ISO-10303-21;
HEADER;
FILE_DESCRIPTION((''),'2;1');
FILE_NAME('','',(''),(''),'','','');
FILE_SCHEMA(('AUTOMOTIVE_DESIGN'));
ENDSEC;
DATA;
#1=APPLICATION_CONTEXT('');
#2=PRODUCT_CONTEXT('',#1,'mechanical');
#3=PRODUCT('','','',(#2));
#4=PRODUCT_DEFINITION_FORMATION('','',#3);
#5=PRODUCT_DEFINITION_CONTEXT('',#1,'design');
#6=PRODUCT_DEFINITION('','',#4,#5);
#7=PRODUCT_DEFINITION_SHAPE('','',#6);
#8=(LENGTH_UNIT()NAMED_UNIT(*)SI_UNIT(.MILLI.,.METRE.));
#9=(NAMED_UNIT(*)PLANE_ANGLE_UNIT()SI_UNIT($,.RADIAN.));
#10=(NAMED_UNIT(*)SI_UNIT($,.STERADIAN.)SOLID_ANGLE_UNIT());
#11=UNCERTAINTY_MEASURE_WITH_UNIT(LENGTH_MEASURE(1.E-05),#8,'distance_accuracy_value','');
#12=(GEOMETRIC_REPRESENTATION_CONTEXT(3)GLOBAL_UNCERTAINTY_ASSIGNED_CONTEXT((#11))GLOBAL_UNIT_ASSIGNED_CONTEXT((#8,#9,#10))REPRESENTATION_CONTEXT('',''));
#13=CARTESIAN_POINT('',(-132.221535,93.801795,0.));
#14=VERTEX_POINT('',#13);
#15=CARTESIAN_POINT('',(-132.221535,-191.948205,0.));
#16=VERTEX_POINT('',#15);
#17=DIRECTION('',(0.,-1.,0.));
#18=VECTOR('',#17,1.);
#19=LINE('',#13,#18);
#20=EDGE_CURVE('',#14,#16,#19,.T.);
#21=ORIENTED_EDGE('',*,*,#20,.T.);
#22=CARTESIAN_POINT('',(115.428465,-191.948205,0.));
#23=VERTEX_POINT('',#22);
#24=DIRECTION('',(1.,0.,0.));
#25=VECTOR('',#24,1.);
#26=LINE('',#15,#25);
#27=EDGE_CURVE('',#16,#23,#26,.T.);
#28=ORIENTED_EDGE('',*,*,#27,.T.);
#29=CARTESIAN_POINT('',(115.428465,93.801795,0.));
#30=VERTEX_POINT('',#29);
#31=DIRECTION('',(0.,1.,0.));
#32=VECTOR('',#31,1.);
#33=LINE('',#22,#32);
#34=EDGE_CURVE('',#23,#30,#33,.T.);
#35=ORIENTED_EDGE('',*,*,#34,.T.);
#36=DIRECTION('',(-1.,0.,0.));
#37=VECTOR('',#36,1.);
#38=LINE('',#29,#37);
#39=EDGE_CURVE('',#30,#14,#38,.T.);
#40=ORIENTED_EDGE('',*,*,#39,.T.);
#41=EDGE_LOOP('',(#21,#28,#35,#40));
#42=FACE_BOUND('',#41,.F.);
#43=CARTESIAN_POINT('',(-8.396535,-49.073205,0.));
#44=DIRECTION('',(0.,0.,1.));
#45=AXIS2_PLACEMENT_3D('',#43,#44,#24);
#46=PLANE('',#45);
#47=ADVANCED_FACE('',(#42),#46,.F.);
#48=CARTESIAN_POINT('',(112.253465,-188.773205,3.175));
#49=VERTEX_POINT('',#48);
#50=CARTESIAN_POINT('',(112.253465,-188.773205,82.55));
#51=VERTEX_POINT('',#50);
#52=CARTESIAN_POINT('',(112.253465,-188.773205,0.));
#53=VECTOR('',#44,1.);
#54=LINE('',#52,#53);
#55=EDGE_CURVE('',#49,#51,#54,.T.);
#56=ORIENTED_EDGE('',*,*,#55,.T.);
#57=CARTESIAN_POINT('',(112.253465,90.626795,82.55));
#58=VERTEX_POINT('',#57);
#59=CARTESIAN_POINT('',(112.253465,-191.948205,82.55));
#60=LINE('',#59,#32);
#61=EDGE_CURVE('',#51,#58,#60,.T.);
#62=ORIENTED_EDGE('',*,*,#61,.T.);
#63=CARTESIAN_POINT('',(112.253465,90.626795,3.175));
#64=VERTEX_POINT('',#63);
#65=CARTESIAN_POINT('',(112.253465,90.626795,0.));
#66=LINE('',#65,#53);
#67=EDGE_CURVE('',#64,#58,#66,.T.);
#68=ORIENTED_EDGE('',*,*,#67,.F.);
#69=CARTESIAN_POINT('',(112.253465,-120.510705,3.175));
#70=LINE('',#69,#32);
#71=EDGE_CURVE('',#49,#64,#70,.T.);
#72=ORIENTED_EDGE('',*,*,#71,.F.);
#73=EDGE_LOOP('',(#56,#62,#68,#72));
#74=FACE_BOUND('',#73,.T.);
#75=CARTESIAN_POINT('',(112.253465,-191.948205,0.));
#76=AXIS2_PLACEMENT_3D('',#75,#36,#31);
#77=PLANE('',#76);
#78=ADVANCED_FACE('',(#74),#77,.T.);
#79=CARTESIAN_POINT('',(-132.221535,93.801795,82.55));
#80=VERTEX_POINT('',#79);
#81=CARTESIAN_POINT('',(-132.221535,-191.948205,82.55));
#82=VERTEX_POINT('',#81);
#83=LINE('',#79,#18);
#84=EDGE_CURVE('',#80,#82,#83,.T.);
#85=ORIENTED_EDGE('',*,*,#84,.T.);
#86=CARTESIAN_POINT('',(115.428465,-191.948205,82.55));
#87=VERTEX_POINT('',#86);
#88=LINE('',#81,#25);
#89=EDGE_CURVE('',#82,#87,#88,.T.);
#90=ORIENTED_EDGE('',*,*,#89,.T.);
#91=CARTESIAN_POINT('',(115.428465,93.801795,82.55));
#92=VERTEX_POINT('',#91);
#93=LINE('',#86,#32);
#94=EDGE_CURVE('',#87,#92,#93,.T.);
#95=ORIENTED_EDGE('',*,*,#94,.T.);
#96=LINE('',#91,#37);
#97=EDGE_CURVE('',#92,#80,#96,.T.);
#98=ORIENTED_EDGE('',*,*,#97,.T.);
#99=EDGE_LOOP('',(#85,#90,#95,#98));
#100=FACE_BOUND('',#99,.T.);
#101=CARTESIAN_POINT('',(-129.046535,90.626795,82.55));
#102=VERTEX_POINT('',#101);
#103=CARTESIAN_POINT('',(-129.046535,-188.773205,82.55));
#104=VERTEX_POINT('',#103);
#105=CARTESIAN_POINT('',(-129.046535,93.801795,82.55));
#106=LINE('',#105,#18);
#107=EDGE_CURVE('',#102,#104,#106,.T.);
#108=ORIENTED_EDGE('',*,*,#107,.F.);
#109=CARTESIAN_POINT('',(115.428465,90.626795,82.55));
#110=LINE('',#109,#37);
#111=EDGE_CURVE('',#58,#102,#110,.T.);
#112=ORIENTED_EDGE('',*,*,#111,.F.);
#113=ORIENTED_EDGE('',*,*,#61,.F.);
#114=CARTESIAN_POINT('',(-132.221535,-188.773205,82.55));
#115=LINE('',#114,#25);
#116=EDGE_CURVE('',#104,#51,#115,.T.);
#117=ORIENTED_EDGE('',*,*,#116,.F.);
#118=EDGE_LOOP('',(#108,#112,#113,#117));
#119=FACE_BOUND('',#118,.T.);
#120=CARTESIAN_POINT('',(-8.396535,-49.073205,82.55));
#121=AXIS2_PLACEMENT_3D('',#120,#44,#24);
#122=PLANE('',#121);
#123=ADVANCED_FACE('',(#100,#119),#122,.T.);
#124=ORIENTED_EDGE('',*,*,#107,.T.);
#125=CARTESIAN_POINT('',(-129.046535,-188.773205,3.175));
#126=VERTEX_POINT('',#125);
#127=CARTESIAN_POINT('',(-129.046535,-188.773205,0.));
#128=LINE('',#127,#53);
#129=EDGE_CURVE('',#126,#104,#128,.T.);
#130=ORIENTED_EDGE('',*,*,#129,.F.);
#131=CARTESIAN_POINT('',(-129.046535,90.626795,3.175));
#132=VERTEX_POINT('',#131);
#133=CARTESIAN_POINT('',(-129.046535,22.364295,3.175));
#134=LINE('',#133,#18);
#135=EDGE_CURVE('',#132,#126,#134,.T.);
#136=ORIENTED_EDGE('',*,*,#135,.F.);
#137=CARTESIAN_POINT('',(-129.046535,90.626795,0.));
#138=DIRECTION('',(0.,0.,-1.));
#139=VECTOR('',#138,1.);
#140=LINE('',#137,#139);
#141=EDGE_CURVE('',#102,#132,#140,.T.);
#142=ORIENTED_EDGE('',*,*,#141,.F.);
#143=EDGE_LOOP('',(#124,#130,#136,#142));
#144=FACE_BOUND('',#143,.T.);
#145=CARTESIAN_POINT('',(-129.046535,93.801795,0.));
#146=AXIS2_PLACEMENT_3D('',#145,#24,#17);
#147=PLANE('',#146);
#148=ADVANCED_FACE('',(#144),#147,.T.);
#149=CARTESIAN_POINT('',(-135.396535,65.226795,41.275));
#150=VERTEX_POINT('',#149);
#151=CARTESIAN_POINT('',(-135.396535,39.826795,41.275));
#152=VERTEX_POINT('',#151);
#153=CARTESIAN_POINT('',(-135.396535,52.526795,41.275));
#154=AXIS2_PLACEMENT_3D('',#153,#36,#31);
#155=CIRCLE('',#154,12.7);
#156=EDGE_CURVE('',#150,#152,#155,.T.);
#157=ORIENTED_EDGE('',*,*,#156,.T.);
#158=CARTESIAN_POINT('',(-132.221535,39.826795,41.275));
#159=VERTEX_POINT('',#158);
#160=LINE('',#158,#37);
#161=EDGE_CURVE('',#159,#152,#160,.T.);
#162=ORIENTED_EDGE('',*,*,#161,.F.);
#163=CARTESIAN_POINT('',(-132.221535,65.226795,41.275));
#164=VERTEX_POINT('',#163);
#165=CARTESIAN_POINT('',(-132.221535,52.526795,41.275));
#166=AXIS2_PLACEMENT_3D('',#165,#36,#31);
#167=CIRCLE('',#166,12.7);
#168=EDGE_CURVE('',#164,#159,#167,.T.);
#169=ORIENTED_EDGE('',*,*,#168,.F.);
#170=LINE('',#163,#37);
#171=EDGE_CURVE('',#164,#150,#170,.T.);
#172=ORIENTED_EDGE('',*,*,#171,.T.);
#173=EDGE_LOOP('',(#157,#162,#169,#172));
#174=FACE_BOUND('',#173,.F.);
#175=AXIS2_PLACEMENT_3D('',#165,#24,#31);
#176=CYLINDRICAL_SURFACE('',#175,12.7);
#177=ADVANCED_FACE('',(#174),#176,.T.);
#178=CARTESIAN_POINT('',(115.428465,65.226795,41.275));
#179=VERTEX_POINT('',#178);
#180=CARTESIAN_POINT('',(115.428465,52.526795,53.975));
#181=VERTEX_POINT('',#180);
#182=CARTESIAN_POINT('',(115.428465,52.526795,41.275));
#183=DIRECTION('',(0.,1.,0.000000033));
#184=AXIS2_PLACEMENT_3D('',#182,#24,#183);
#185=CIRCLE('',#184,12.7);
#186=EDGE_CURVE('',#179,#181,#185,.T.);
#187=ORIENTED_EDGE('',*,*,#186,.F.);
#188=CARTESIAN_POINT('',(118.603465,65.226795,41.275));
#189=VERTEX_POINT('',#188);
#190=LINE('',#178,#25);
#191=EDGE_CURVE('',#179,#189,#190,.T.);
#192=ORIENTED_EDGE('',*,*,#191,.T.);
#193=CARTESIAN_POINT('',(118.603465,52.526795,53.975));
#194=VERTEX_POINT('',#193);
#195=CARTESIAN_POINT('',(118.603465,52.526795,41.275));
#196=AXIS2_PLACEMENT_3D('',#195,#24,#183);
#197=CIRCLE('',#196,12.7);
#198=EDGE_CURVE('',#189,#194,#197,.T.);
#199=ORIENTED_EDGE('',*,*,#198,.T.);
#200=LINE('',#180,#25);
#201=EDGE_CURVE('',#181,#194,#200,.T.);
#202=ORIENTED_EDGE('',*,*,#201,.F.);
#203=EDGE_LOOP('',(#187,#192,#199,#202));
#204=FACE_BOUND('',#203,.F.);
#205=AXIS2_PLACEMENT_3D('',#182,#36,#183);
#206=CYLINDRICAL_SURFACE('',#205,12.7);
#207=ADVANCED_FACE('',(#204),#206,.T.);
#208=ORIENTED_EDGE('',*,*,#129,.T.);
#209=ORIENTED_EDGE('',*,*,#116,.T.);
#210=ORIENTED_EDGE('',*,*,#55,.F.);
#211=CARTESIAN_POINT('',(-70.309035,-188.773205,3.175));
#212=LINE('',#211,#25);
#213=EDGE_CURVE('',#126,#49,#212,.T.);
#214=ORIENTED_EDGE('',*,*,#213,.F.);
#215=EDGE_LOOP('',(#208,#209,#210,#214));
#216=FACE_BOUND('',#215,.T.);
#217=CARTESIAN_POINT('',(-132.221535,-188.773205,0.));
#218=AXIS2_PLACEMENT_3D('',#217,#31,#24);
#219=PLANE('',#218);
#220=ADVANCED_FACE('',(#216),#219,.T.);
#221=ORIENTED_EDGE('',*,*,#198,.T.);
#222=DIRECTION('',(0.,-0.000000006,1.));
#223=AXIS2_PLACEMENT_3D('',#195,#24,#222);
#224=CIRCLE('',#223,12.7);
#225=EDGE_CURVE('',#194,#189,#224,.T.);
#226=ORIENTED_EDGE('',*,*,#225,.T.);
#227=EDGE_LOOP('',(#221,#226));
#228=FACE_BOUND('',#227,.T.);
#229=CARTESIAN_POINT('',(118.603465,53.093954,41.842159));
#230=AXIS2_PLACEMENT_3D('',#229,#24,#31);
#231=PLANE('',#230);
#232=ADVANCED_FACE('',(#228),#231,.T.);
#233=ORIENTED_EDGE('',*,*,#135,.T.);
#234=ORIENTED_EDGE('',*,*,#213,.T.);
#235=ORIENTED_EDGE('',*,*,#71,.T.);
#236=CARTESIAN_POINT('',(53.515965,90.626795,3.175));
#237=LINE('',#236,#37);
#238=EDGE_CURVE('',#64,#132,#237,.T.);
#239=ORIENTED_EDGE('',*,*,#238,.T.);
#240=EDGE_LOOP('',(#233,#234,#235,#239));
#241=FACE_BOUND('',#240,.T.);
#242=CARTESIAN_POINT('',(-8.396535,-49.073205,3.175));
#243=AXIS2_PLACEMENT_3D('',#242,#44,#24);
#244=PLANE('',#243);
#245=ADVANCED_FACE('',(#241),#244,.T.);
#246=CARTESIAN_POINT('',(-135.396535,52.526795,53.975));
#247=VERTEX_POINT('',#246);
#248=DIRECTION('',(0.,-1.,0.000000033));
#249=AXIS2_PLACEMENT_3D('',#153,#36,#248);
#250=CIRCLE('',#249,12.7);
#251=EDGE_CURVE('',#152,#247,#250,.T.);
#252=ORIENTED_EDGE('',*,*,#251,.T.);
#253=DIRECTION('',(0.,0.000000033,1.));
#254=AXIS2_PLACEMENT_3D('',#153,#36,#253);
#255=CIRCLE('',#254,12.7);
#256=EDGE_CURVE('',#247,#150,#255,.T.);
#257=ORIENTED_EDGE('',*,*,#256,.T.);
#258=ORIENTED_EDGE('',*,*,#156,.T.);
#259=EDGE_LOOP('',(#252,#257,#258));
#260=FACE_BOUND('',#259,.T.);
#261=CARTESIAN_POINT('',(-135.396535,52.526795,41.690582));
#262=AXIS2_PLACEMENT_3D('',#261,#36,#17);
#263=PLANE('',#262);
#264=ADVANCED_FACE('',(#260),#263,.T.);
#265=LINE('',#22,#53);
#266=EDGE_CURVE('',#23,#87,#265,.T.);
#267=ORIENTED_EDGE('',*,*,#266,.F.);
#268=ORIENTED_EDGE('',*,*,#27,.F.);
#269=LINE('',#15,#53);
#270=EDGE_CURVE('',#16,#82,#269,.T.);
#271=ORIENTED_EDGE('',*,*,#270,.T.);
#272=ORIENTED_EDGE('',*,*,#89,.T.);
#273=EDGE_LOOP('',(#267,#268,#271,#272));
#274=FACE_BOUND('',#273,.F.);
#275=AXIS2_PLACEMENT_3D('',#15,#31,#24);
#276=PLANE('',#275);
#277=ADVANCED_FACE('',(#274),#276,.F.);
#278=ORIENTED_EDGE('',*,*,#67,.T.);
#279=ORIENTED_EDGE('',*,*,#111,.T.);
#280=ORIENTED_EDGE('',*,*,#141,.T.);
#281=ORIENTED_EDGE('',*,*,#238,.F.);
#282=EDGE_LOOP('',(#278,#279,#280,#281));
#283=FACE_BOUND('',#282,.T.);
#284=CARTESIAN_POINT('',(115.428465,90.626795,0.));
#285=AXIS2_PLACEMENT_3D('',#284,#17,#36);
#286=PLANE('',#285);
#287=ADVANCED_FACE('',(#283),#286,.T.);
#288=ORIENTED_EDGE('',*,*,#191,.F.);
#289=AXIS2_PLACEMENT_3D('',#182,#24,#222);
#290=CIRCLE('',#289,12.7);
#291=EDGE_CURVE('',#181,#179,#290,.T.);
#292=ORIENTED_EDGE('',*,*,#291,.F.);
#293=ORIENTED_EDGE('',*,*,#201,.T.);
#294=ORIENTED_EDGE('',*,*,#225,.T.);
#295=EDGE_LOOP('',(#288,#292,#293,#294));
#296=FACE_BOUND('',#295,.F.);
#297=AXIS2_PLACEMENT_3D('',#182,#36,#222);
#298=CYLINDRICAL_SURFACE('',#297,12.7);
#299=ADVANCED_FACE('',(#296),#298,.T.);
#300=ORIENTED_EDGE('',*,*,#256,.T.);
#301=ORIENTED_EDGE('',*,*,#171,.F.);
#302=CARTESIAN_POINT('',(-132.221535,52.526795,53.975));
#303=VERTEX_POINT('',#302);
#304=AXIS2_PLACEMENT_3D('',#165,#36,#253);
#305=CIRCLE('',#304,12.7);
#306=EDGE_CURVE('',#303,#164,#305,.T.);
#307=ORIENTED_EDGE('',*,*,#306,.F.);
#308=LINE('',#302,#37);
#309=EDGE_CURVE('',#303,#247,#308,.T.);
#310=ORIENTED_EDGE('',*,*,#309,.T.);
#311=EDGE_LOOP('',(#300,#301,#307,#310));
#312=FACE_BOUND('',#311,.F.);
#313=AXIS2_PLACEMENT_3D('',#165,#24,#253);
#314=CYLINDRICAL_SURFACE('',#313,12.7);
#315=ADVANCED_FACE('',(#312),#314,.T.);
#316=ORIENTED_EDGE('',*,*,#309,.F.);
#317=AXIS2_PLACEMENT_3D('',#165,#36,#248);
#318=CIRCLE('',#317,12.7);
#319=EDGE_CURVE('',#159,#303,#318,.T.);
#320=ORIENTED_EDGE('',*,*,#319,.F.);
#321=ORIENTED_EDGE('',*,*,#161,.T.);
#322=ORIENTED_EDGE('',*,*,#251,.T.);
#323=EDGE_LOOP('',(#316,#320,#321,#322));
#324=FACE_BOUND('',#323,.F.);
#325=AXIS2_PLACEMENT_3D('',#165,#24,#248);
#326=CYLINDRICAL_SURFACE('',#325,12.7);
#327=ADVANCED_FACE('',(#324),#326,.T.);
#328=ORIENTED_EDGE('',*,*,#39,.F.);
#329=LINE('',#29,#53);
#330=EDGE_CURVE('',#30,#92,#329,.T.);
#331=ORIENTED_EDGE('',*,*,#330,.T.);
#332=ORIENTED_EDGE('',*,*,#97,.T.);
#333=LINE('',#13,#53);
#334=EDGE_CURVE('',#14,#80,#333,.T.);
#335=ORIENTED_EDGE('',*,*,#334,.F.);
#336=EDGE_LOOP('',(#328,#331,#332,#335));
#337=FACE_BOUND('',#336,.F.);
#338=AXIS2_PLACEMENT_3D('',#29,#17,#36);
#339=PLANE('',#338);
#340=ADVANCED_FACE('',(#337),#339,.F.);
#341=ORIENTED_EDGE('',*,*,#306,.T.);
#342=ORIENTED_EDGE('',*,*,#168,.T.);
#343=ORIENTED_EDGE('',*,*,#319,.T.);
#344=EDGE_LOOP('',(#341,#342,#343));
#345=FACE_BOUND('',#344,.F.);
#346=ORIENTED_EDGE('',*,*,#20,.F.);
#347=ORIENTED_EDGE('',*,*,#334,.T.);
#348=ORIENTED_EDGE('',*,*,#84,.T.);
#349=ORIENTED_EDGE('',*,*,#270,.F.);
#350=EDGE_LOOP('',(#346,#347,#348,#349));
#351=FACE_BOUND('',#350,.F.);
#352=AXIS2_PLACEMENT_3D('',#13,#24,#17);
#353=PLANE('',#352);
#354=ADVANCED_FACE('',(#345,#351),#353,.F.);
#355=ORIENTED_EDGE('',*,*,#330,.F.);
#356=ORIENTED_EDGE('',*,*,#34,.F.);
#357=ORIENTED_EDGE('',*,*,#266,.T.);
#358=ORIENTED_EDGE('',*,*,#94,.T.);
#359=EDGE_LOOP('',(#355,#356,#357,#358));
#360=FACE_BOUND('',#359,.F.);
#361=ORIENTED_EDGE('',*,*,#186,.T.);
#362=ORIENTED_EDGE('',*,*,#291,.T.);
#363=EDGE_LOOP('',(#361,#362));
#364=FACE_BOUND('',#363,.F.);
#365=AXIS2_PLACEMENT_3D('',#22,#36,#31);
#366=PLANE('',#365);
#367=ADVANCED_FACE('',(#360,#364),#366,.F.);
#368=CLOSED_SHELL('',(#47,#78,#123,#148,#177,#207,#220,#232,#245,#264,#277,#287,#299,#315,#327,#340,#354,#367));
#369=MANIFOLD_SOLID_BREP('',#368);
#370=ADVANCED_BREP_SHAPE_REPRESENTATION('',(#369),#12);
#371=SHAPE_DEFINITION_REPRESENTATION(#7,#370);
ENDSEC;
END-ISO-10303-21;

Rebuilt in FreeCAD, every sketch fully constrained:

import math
import FreeCAD as App
import Part
import Sketcher
from FreeCAD import Vector
Q = App.Units.Quantity


def faces_at(feature, points):
    """Names of the faces that lie closest to the given points."""
    faces = feature.Shape.Faces
    near = lambda p: min(range(len(faces)), key=lambda i: faces[i].distToShape(Part.Vertex(*p))[0])
    return sorted({f"Face{near(p) + 1}" for p in points})

doc = App.newDocument("Part")
body = doc.addObject("PartDesign::Body", "Body")

sketch1 = doc.addObject("Sketcher::SketchObject", "Sketch")
body.addObject(sketch1)
sketch1.AttachmentSupport = (doc.XY_Plane, [""])
sketch1.MapMode = "FlatFace"
sketch1.addGeometry([
    Part.LineSegment(Vector(-132.221535, 93.801795, 0), Vector(-132.221535, -191.948205, 0)),
    Part.LineSegment(Vector(-132.221535, -191.948205, 0), Vector(115.428465, -191.948205, 0)),
    Part.LineSegment(Vector(115.428465, -191.948205, 0), Vector(115.428465, 93.801795, 0)),
    Part.LineSegment(Vector(115.428465, 93.801795, 0), Vector(-132.221535, 93.801795, 0)),
], False)
sketch1.addConstraint([
    Sketcher.Constraint("Coincident", 0, 2, 1, 1),
    Sketcher.Constraint("Coincident", 1, 2, 2, 1),
    Sketcher.Constraint("Coincident", 2, 2, 3, 1),
    Sketcher.Constraint("Coincident", 3, 2, 0, 1),
    Sketcher.Constraint("Vertical", 0),
    Sketcher.Constraint("Horizontal", 1),
    Sketcher.Constraint("Vertical", 2),
    Sketcher.Constraint("Horizontal", 3),
    Sketcher.Constraint("DistanceX", 1, 1, 1, 2, Q("9.75 in")),
    Sketcher.Constraint("DistanceY", 0, 2, 0, 1, Q("11.25 in")),
    Sketcher.Constraint("DistanceX", 0, 2, -1, 1, Q("132.221535 mm")),
    Sketcher.Constraint("DistanceY", 0, 2, -1, 1, Q("191.948205 mm")),
])
pad1 = doc.addObject("PartDesign::Pad", "Pad")
body.addObject(pad1)
pad1.Profile = sketch1
pad1.Length = Q("3.25 in")
doc.recompute()

thickness = doc.addObject("PartDesign::Thickness", "Thickness")
body.addObject(thickness)
thickness.Base = (pad1, faces_at(pad1, [(-8.397, -49.073, 82.55)]))
thickness.Value = Q("0.125 in")
thickness.Reversed = True
thickness.Join = "Arc"

sketch2 = doc.addObject("Sketcher::SketchObject", "Sketch001")
body.addObject(sketch2)
sketch2.AttachmentSupport = (doc.YZ_Plane, [""])
sketch2.MapMode = "FlatFace"
sketch2.AttachmentOffset = App.Placement(Vector(0, 0, 115.428465), App.Rotation())
sketch2.addGeometry([
    Part.ArcOfCircle(Part.Circle(Vector(52.526795, 41.275, 0), Vector(0, 0, 1), 12.7), math.radians(90), math.radians(360)),
    Part.ArcOfCircle(Part.Circle(Vector(52.526795, 41.275, 0), Vector(0, 0, 1), 12.7), math.radians(0.000002), math.radians(89.999998)),
], False)
sketch2.addConstraint([
    Sketcher.Constraint("Tangent", 0, 1, 1, 2),
    Sketcher.Constraint("Coincident", 1, 1, 0, 2),
    Sketcher.Constraint("Horizontal", 0, 3, 1, 1),
    Sketcher.Constraint("Vertical", 1, 3, 0, 1),
    Sketcher.Constraint("Radius", 0, Q("0.5 in")),
    Sketcher.Constraint("DistanceY", -1, 1, 0, 3, Q("1.625 in")),
    Sketcher.Constraint("DistanceX", -1, 1, 0, 3, Q("52.526795 mm")),
])
pad2 = doc.addObject("PartDesign::Pad", "Pad001")
body.addObject(pad2)
pad2.Profile = sketch2
pad2.Length = Q("0.125 in")

sketch3 = doc.addObject("Sketcher::SketchObject", "Sketch002")
body.addObject(sketch3)
sketch3.AttachmentSupport = (doc.YZ_Plane, [""])
sketch3.MapMode = "FlatFace"
sketch3.AttachmentOffset = App.Placement(Vector(0, 0, -132.221535), App.Rotation())
sketch3.addGeometry([
    Part.ArcOfCircle(Part.Circle(Vector(52.526795, 41.275, 0), Vector(0, 0, 1), 12.7), math.radians(0.000002), math.radians(89.999998)),
    Part.ArcOfCircle(Part.Circle(Vector(52.526795, 41.275, 0), Vector(0, 0, 1), 12.7), math.radians(180), math.radians(360)),
    Part.ArcOfCircle(Part.Circle(Vector(52.526795, 41.275, 0), Vector(0, 0, 1), 12.7), math.radians(90.000002), math.radians(179.999998)),
], False)
sketch3.addConstraint([
    Sketcher.Constraint("Tangent", 0, 1, 1, 2),
    Sketcher.Constraint("Tangent", 1, 1, 2, 2),
    Sketcher.Constraint("Tangent", 2, 1, 0, 2),
    Sketcher.Constraint("Horizontal", 2, 3, 0, 1),
    Sketcher.Constraint("Horizontal", 0, 1, 1, 1),
    Sketcher.Constraint("Vertical", 1, 3, 2, 1),
    Sketcher.Constraint("Radius", 0, Q("0.5 in")),
    Sketcher.Constraint("DistanceY", -1, 1, 0, 3, Q("1.625 in")),
    Sketcher.Constraint("DistanceX", -1, 1, 0, 3, Q("52.526795 mm")),
])
pad3 = doc.addObject("PartDesign::Pad", "Pad002")
body.addObject(pad3)
pad3.Profile = sketch3
pad3.Length = Q("0.125 in")
pad3.Reversed = True

doc.recompute()
